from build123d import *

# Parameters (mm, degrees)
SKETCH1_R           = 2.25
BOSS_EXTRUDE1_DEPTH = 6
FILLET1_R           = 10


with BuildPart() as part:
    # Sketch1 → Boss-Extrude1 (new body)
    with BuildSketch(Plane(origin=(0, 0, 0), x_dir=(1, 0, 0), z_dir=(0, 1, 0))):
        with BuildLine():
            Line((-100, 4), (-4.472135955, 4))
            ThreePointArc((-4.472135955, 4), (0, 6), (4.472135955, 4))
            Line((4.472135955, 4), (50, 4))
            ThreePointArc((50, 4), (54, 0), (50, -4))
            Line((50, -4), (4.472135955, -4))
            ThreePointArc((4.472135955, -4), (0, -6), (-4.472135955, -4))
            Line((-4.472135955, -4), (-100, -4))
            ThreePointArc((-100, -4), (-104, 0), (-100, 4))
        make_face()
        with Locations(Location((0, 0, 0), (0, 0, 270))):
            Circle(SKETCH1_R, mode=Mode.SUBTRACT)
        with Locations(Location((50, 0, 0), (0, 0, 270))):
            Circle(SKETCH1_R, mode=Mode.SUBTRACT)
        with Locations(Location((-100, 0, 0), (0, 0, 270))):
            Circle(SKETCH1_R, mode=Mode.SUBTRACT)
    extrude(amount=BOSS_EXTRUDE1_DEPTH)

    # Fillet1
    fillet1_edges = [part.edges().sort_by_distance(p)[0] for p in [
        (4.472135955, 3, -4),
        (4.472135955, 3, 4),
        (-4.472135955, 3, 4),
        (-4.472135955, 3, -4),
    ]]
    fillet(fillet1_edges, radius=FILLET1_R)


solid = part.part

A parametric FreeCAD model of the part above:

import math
import FreeCAD as App
import Part
import Sketcher

V = App.Vector
Q = App.Units.Quantity


def edges_at(feature, points):
    """Names of the edges that pass closest to the given points."""
    edges = feature.Shape.Edges
    near = lambda p: min(range(len(edges)), key=lambda i: edges[i].distToShape(Part.Vertex(*p))[0])
    return sorted({f"Edge{near(p) + 1}" for p in points})

doc = App.newDocument("Part")
body = doc.addObject("PartDesign::Body", "Body")

sketch1 = doc.addObject("Sketcher::SketchObject", "Sketch")
body.addObject(sketch1)
sketch1.AttachmentSupport = (doc.XZ_Plane, [""])
sketch1.MapMode = "FlatFace"
sketch1.addGeometry([
    Part.LineSegment(V(-4.472136, -4, 0), V(-100, -4, 0)),
    Part.ArcOfCircle(Part.Circle(V(-100, 0, 0), V(0, 0, 1), 4), math.radians(90), math.radians(270)),
    Part.LineSegment(V(-100, 4, 0), V(-4.472136, 4, 0)),
    Part.ArcOfCircle(Part.Circle(V(0, 0, 0), V(0, 0, 1), 6), math.radians(41.810315), math.radians(138.189685)),
    Part.LineSegment(V(4.472136, 4, 0), V(50, 4, 0)),
    Part.ArcOfCircle(Part.Circle(V(50, 0, 0), V(0, 0, 1), 4), math.radians(-90), math.radians(90)),
    Part.LineSegment(V(50, -4, 0), V(4.472136, -4, 0)),
    Part.ArcOfCircle(Part.Circle(V(0, 0, 0), V(0, 0, 1), 6), math.radians(-138.189685), math.radians(-41.810315)),
    Part.Circle(V(50, 0, 0), V(0, 0, 1), 2.25),
    Part.Circle(V(0, 0, 0), V(0, 0, 1), 2.25),
    Part.Circle(V(-100, 0, 0), V(0, 0, 1), 2.25),
], False)
sketch1.addConstraint([
    Sketcher.Constraint("Tangent", 0, 2, 1, 2),
    Sketcher.Constraint("Tangent", 1, 1, 2, 1),
    Sketcher.Constraint("Coincident", 2, 2, 3, 2),
    Sketcher.Constraint("Coincident", 3, 1, 4, 1),
    Sketcher.Constraint("Tangent", 4, 2, 5, 2),
    Sketcher.Constraint("Tangent", 5, 1, 6, 1),
    Sketcher.Constraint("Coincident", 6, 2, 7, 2),
    Sketcher.Constraint("Coincident", 7, 1, 0, 1),
    Sketcher.Constraint("Horizontal", 0),
    Sketcher.Constraint("Horizontal", 2),
    Sketcher.Constraint("Horizontal", 4),
    Sketcher.Constraint("Horizontal", 6),
    Sketcher.Constraint("Coincident", 3, 3, -1, 1),
    Sketcher.Constraint("Coincident", 7, 3, -1, 1),
    Sketcher.Constraint("Coincident", 9, 3, -1, 1),
    Sketcher.Constraint("Coincident", 8, 3, 5, 3),
    Sketcher.Constraint("Coincident", 10, 3, 1, 3),
    Sketcher.Constraint("Equal", 1, 5),
    Sketcher.Constraint("Equal", 3, 7),
    Sketcher.Constraint("Equal", 8, 9),
    Sketcher.Constraint("Equal", 9, 10),
    Sketcher.Constraint("PointOnObject", 1, 3, -1),
    Sketcher.Constraint("PointOnObject", 5, 3, -1),
    Sketcher.Constraint("Radius", 1, Q("4 mm")),
    Sketcher.Constraint("Radius", 3, Q("6 mm")),
    Sketcher.Constraint("Diameter", 8, Q("4.5 mm")),
    Sketcher.Constraint("DistanceX", 1, 3, -1, 1, Q("100 mm")),
    Sketcher.Constraint("DistanceX", -1, 1, 5, 3, Q("50 mm")),
])
pad1 = doc.addObject("PartDesign::Pad", "Pad")
body.addObject(pad1)
pad1.Profile = sketch1
pad1.Length = 6
pad1.Reversed = True
doc.recompute()

fillet = doc.addObject("PartDesign::Fillet", "Fillet")
body.addObject(fillet)
fillet.Base = (pad1, edges_at(pad1, [
    (4.472, 3, -4),
    (4.472, 3, 4),
    (-4.472, 3, 4),
    (-4.472, 3, -4),
]))
fillet.Radius = 10

doc.recompute()
